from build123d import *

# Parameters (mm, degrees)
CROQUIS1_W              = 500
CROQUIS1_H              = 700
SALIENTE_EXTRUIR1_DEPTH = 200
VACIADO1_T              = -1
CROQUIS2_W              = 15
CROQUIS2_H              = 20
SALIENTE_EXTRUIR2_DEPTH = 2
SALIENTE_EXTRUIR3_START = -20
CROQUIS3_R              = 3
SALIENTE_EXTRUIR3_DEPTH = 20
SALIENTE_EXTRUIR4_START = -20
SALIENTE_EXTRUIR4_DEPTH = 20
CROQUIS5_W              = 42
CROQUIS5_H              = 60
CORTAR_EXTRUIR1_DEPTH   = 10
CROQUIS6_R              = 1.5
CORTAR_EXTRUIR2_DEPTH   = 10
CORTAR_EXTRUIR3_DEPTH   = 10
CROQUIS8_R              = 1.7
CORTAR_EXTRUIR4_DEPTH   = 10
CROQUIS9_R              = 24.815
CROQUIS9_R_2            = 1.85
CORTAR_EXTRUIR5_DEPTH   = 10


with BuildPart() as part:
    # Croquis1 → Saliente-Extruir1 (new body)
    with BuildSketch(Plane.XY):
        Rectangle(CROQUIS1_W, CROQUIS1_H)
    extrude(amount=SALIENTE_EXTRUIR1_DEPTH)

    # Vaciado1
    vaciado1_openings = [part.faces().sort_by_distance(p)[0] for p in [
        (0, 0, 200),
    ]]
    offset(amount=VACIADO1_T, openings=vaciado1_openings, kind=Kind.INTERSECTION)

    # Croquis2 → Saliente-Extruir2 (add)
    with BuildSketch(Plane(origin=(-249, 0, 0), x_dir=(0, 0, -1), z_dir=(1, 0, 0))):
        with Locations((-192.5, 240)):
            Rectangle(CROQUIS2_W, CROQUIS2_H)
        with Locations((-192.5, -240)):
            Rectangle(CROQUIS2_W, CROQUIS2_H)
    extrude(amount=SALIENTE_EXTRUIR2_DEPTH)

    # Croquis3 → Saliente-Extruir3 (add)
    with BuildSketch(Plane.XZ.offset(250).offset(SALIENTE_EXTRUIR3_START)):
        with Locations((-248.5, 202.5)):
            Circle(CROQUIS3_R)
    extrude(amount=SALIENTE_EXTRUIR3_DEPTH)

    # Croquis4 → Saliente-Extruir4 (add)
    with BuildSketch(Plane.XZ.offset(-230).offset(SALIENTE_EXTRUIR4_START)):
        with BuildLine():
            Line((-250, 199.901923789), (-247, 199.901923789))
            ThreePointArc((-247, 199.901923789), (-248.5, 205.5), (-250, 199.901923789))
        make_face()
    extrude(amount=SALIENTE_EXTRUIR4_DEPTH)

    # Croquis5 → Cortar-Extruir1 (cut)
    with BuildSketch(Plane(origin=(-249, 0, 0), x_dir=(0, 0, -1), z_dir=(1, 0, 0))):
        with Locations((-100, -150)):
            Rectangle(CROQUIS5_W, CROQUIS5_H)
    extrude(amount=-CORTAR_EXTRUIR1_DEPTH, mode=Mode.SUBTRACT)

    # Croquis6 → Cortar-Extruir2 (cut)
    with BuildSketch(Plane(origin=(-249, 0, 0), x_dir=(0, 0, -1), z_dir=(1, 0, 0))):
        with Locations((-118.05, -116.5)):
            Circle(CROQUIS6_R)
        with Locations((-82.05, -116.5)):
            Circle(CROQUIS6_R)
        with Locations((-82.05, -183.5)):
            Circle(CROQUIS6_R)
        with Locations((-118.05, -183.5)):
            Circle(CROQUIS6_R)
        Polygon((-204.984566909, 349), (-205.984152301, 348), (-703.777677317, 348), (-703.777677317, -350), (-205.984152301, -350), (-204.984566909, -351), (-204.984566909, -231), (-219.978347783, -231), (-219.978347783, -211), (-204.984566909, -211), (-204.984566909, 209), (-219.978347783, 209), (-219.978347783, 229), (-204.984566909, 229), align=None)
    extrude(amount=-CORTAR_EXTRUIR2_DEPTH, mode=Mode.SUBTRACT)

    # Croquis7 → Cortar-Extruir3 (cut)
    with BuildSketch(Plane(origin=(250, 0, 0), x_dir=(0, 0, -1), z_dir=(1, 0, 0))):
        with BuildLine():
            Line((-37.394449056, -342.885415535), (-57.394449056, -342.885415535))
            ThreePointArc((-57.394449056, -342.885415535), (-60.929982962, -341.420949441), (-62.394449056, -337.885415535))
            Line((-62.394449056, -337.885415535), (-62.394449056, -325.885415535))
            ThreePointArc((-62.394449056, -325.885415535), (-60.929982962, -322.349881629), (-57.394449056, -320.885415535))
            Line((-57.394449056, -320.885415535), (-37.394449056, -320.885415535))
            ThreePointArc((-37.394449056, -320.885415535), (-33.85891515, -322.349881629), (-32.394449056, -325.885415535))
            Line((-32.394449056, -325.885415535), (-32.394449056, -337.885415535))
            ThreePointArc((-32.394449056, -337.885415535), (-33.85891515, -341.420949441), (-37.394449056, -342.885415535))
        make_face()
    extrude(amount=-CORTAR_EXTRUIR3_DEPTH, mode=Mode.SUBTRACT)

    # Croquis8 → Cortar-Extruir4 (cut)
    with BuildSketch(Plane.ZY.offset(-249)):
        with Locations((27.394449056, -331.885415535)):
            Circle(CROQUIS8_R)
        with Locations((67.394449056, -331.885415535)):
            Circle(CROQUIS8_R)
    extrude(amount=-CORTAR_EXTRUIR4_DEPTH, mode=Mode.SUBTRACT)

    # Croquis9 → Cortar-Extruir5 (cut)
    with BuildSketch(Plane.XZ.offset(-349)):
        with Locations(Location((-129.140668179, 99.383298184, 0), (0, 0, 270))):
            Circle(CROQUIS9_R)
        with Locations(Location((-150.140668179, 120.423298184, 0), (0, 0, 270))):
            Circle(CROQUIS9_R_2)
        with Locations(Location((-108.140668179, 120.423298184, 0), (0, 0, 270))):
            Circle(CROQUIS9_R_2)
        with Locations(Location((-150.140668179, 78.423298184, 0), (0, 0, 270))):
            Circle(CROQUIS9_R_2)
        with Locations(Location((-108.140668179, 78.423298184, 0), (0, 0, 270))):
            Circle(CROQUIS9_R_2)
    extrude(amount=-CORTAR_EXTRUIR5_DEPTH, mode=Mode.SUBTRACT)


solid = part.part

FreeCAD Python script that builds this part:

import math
import FreeCAD as App
import Part
import Sketcher
from FreeCAD import Vector
Q = App.Units.Quantity


def faces_at(feature, points):
    """Names of the faces that lie closest to the given points."""
    faces = feature.Shape.Faces
    near = lambda p: min(range(len(faces)), key=lambda i: faces[i].distToShape(Part.Vertex(*p))[0])
    return sorted({f"Face{near(p) + 1}" for p in points})

doc = App.newDocument("Part")
body = doc.addObject("PartDesign::Body", "Body")

# Sketch on XY plane
sketch1 = doc.addObject("Sketcher::SketchObject", "Sketch")
body.addObject(sketch1)
sketch1.AttachmentSupport = (doc.XY_Plane, [""])
sketch1.MapMode = "FlatFace"
sketch1.addGeometry(Part.LineSegment(Vector(-250, 350, 0), Vector(-250, -350, 0)), False)
sketch1.addGeometry(Part.LineSegment(Vector(-250, -350, 0), Vector(250, -350, 0)), False)
sketch1.addGeometry(Part.LineSegment(Vector(250, -350, 0), Vector(250, 350, 0)), False)
sketch1.addGeometry(Part.LineSegment(Vector(250, 350, 0), Vector(-250, 350, 0)), False)
sketch1.addConstraint(Sketcher.Constraint("Coincident", 0, 2, 1, 1))
sketch1.addConstraint(Sketcher.Constraint("Coincident", 1, 2, 2, 1))
sketch1.addConstraint(Sketcher.Constraint("Coincident", 2, 2, 3, 1))
sketch1.addConstraint(Sketcher.Constraint("Coincident", 3, 2, 0, 1))
sketch1.addConstraint(Sketcher.Constraint("Vertical", 0))
sketch1.addConstraint(Sketcher.Constraint("Horizontal", 1))
sketch1.addConstraint(Sketcher.Constraint("Vertical", 2))
sketch1.addConstraint(Sketcher.Constraint("Horizontal", 3))
sketch1.addConstraint(Sketcher.Constraint("Symmetric", 0, 2, 2, 2, -1, 1))
sketch1.addConstraint(Sketcher.Constraint("DistanceX", 1, 1, 1, 2, Q("500 mm")))
sketch1.addConstraint(Sketcher.Constraint("DistanceY", 0, 2, 0, 1, Q("700 mm")))
pad1 = doc.addObject("PartDesign::Pad", "Pad")
body.addObject(pad1)
pad1.Profile = sketch1
pad1.Length = 200
doc.recompute()

thickness = doc.addObject("PartDesign::Thickness", "Thickness")
body.addObject(thickness)
thickness.Base = (pad1, faces_at(pad1, [(0, 0, 200)]))
thickness.Value = 1
thickness.Reversed = True
thickness.Join = "Intersection"

# Sketch on YZ plane
sketch2 = doc.addObject("Sketcher::SketchObject", "Sketch001")
body.addObject(sketch2)
sketch2.AttachmentSupport = (doc.YZ_Plane, [""])
sketch2.MapMode = "FlatFace"
sketch2.AttachmentOffset = App.Placement(Vector(0, 0, -249), App.Rotation())
sketch2.addGeometry(Part.LineSegment(Vector(250, 200, 0), Vector(230, 200, 0)), False)
sketch2.addGeometry(Part.LineSegment(Vector(230, 200, 0), Vector(230, 185, 0)), False)
sketch2.addGeometry(Part.LineSegment(Vector(230, 185, 0), Vector(250, 185, 0)), False)
sketch2.addGeometry(Part.LineSegment(Vector(250, 185, 0), Vector(250, 200, 0)), False)
sketch2.addGeometry(Part.LineSegment(Vector(-230, 200, 0), Vector(-250, 200, 0)), False)
sketch2.addGeometry(Part.LineSegment(Vector(-250, 200, 0), Vector(-250, 185, 0)), False)
sketch2.addGeometry(Part.LineSegment(Vector(-250, 185, 0), Vector(-230, 185, 0)), False)
sketch2.addGeometry(Part.LineSegment(Vector(-230, 185, 0), Vector(-230, 200, 0)), False)
sketch2.addConstraint(Sketcher.Constraint("Coincident", 0, 2, 1, 1))
sketch2.addConstraint(Sketcher.Constraint("Coincident", 1, 2, 2, 1))
sketch2.addConstraint(Sketcher.Constraint("Coincident", 2, 2, 3, 1))
sketch2.addConstraint(Sketcher.Constraint("Coincident", 3, 2, 0, 1))
sketch2.addConstraint(Sketcher.Constraint("Coincident", 4, 2, 5, 1))
sketch2.addConstraint(Sketcher.Constraint("Coincident", 5, 2, 6, 1))
sketch2.addConstraint(Sketcher.Constraint("Coincident", 6, 2, 7, 1))
sketch2.addConstraint(Sketcher.Constraint("Coincident", 7, 2, 4, 1))
sketch2.addConstraint(Sketcher.Constraint("Horizontal", 0))
sketch2.addConstraint(Sketcher.Constraint("Vertical", 1))
sketch2.addConstraint(Sketcher.Constraint("Horizontal", 2))
sketch2.addConstraint(Sketcher.Constraint("Vertical", 3))
sketch2.addConstraint(Sketcher.Constraint("Horizontal", 4))
sketch2.addConstraint(Sketcher.Constraint("Vertical", 5))
sketch2.addConstraint(Sketcher.Constraint("Horizontal", 6))
sketch2.addConstraint(Sketcher.Constraint("Vertical", 7))
sketch2.addConstraint(Sketcher.Constraint("Symmetric", 3, 2, 4, 2, -2))
sketch2.addConstraint(Sketcher.Constraint("Symmetric", 1, 2, 6, 2, -2))
sketch2.addConstraint(Sketcher.Constraint("DistanceX", 0, 2, 0, 1, Q("20 mm")))
sketch2.addConstraint(Sketcher.Constraint("DistanceY", 1, 2, 1, 1, Q("15 mm")))
sketch2.addConstraint(Sketcher.Constraint("DistanceX", -1, 1, 0, 2, Q("230 mm")))
sketch2.addConstraint(Sketcher.Constraint("DistanceY", -1, 1, 0, 2, Q("200 mm")))
pad2 = doc.addObject("PartDesign::Pad", "Pad001")
body.addObject(pad2)
pad2.Profile = sketch2
pad2.Length = 2

# Sketch on XZ plane
sketch3 = doc.addObject("Sketcher::SketchObject", "Sketch002")
body.addObject(sketch3)
sketch3.AttachmentSupport = (doc.XZ_Plane, [""])
sketch3.MapMode = "FlatFace"
sketch3.AttachmentOffset = App.Placement(Vector(0, 0, 230), App.Rotation())
sketch3.addGeometry(Part.Circle(Vector(-248.5, 202.5, 0), Vector(0, 0, 1), 3), False)
sketch3.addConstraint(Sketcher.Constraint("Diameter", 0, Q("6 mm")))
sketch3.addConstraint(Sketcher.Constraint("DistanceX", 0, 3, -1, 1, Q("248.5 mm")))
sketch3.addConstraint(Sketcher.Constraint("DistanceY", -1, 1, 0, 3, Q("202.5 mm")))
pad3 = doc.addObject("PartDesign::Pad", "Pad002")
body.addObject(pad3)
pad3.Profile = sketch3
pad3.Length = 20

# Sketch on XZ plane
sketch4 = doc.addObject("Sketcher::SketchObject", "Sketch003")
body.addObject(sketch4)
sketch4.AttachmentSupport = (doc.XZ_Plane, [""])
sketch4.MapMode = "FlatFace"
sketch4.AttachmentOffset = App.Placement(Vector(0, 0, -250), App.Rotation())
sketch4.addGeometry(Part.LineSegment(Vector(-250, 199.9, 0), Vector(-247, 199.9, 0)), False)
sketch4.addGeometry(Part.ArcOfCircle(Part.Circle(Vector(-248.5, 202.5, 0), Vector(0, 0, 1), 3), math.radians(-60), math.radians(240)), False)
sketch4.addConstraint(Sketcher.Constraint("Coincident", 0, 1, 1, 2))
sketch4.addConstraint(Sketcher.Constraint("Coincident", 1, 1, 0, 2))
sketch4.addConstraint(Sketcher.Constraint("Horizontal", 0))
sketch4.addConstraint(Sketcher.Constraint("Radius", 1, Q("3 mm")))
sketch4.addConstraint(Sketcher.Constraint("DistanceX", 0, 1, 0, 2, Q("3 mm")))
sketch4.addConstraint(Sketcher.Constraint("DistanceX", 0, 1, -1, 1, Q("250 mm")))
sketch4.addConstraint(Sketcher.Constraint("DistanceY", -1, 1, 1, 3, Q("202.5 mm")))
pad4 = doc.addObject("PartDesign::Pad", "Pad003")
body.addObject(pad4)
pad4.Profile = sketch4
pad4.Length = 20

# Sketch on YZ plane
sketch5 = doc.addObject("Sketcher::SketchObject", "Sketch004")
body.addObject(sketch5)
sketch5.AttachmentSupport = (doc.YZ_Plane, [""])
sketch5.MapMode = "FlatFace"
sketch5.AttachmentOffset = App.Placement(Vector(0, 0, -249), App.Rotation())
sketch5.addGeometry(Part.LineSegment(Vector(-120, 121, 0), Vector(-180, 121, 0)), False)
sketch5.addGeometry(Part.LineSegment(Vector(-180, 121, 0), Vector(-180, 79, 0)), False)
sketch5.addGeometry(Part.LineSegment(Vector(-180, 79, 0), Vector(-120, 79, 0)), False)
sketch5.addGeometry(Part.LineSegment(Vector(-120, 79, 0), Vector(-120, 121, 0)), False)
sketch5.addConstraint(Sketcher.Constraint("Coincident", 0, 2, 1, 1))
sketch5.addConstraint(Sketcher.Constraint("Coincident", 1, 2, 2, 1))
sketch5.addConstraint(Sketcher.Constraint("Coincident", 2, 2, 3, 1))
sketch5.addConstraint(Sketcher.Constraint("Coincident", 3, 2, 0, 1))
sketch5.addConstraint(Sketcher.Constraint("Horizontal", 0))
sketch5.addConstraint(Sketcher.Constraint("Vertical", 1))
sketch5.addConstraint(Sketcher.Constraint("Horizontal", 2))
sketch5.addConstraint(Sketcher.Constraint("Vertical", 3))
sketch5.addConstraint(Sketcher.Constraint("DistanceX", 0, 2, 0, 1, Q("60 mm")))
sketch5.addConstraint(Sketcher.Constraint("DistanceY", 1, 2, 1, 1, Q("42 mm")))
sketch5.addConstraint(Sketcher.Constraint("DistanceX", 0, 2, -1, 1, Q("180 mm")))
sketch5.addConstraint(Sketcher.Constraint("DistanceY", -1, 1, 0, 2, Q("121 mm")))
pocket1 = doc.addObject("PartDesign::Pocket", "Pocket")
body.addObject(pocket1)
pocket1.Profile = sketch5
pocket1.Length = 10

# Sketch on YZ plane
sketch6 = doc.addObject("Sketcher::SketchObject", "Sketch005")
body.addObject(sketch6)
sketch6.AttachmentSupport = (doc.YZ_Plane, [""])
sketch6.MapMode = "FlatFace"
sketch6.AttachmentOffset = App.Placement(Vector(0, 0, -249), App.Rotation())
sketch6.addGeometry(Part.Circle(Vector(-116.5, 118, 0), Vector(0, 0, 1), 1.5), False)
sketch6.addGeometry(Part.Circle(Vector(-116.5, 82, 0), Vector(0, 0, 1), 1.5), False)
sketch6.addGeometry(Part.Circle(Vector(-183.5, 82, 0), Vector(0, 0, 1), 1.5), False)
sketch6.addGeometry(Part.Circle(Vector(-183.5, 118, 0), Vector(0, 0, 1), 1.5), False)
sketch6.addGeometry(Part.LineSegment(Vector(349, 205, 0), Vector(348, 206, 0)), False)
sketch6.addGeometry(Part.LineSegment(Vector(348, 206, 0), Vector(348, 703.8, 0)), False)
sketch6.addGeometry(Part.LineSegment(Vector(348, 703.8, 0), Vector(-350, 703.8, 0)), False)
sketch6.addGeometry(Part.LineSegment(Vector(-350, 703.8, 0), Vector(-350, 206, 0)), False)
sketch6.addGeometry(Part.LineSegment(Vector(-350, 206, 0), Vector(-351, 205, 0)), False)
sketch6.addGeometry(Part.LineSegment(Vector(-351, 205, 0), Vector(-231, 205, 0)), False)
sketch6.addGeometry(Part.LineSegment(Vector(-231, 205, 0), Vector(-231, 220, 0)), False)
sketch6.addGeometry(Part.LineSegment(Vector(-231, 220, 0), Vector(-211, 220, 0)), False)
sketch6.addGeometry(Part.LineSegment(Vector(-211, 220, 0), Vector(-211, 205, 0)), False)
sketch6.addGeometry(Part.LineSegment(Vector(-211, 205, 0), Vector(209, 205, 0)), False)
sketch6.addGeometry(Part.LineSegment(Vector(209, 205, 0), Vector(209, 220, 0)), False)
sketch6.addGeometry(Part.LineSegment(Vector(209, 220, 0), Vector(229, 220, 0)), False)
sketch6.addGeometry(Part.LineSegment(Vector(229, 220, 0), Vector(229, 205, 0)), False)
sketch6.addGeometry(Part.LineSegment(Vector(229, 205, 0), Vector(349, 205, 0)), False)
sketch6.addConstraint(Sketcher.Constraint("Coincident", 4, 2, 5, 1))
sketch6.addConstraint(Sketcher.Constraint("Coincident", 5, 2, 6, 1))
sketch6.addConstraint(Sketcher.Constraint("Coincident", 6, 2, 7, 1))
sketch6.addConstraint(Sketcher.Constraint("Coincident", 7, 2, 8, 1))
sketch6.addConstraint(Sketcher.Constraint("Coincident", 8, 2, 9, 1))
sketch6.addConstraint(Sketcher.Constraint("Coincident", 9, 2, 10, 1))
sketch6.addConstraint(Sketcher.Constraint("Coincident", 10, 2, 11, 1))
sketch6.addConstraint(Sketcher.Constraint("Coincident", 11, 2, 12, 1))
sketch6.addConstraint(Sketcher.Constraint("Coincident", 12, 2, 13, 1))
sketch6.addConstraint(Sketcher.Constraint("Coincident", 13, 2, 14, 1))
sketch6.addConstraint(Sketcher.Constraint("Coincident", 14, 2, 15, 1))
sketch6.addConstraint(Sketcher.Constraint("Coincident", 15, 2, 16, 1))
sketch6.addConstraint(Sketcher.Constraint("Coincident", 16, 2, 17, 1))
sketch6.addConstraint(Sketcher.Constraint("Coincident", 17, 2, 4, 1))
sketch6.addConstraint(Sketcher.Constraint("Vertical", 5))
sketch6.addConstraint(Sketcher.Constraint("Horizontal", 6))
sketch6.addConstraint(Sketcher.Constraint("Vertical", 7))
sketch6.addConstraint(Sketcher.Constraint("Horizontal", 9))
sketch6.addConstraint(Sketcher.Constraint("Vertical", 10))
sketch6.addConstraint(Sketcher.Constraint("Horizontal", 11))
sketch6.addConstraint(Sketcher.Constraint("Vertical", 12))
sketch6.addConstraint(Sketcher.Constraint("Horizontal", 13))
sketch6.addConstraint(Sketcher.Constraint("Vertical", 14))
sketch6.addConstraint(Sketcher.Constraint("Horizontal", 15))
sketch6.addConstraint(Sketcher.Constraint("Vertical", 16))
sketch6.addConstraint(Sketcher.Constraint("Horizontal", 17))
sketch6.addConstraint(Sketcher.Constraint("Equal", 0, 1))
sketch6.addConstraint(Sketcher.Constraint("Equal", 1, 2))
sketch6.addConstraint(Sketcher.Constraint("Equal", 2, 3))
sketch6.addConstraint(Sketcher.Constraint("Horizontal", 1, 3, 2, 3))
sketch6.addConstraint(Sketcher.Constraint("Horizontal", 0, 3, 3, 3))
sketch6.addConstraint(Sketcher.Constraint("Horizontal", 4, 2, 7, 2))
sketch6.addConstraint(Sketcher.Constraint("Horizontal", 9, 2, 12, 2))
sketch6.addConstraint(Sketcher.Constraint("Horizontal", 11, 2, 14, 2))
sketch6.addConstraint(Sketcher.Constraint("Horizontal", 13, 2, 16, 2))
sketch6.addConstraint(Sketcher.Constraint("Vertical", 0, 3, 1, 3))
sketch6.addConstraint(Sketcher.Constraint("Vertical", 2, 3, 3, 3))
sketch6.addConstraint(Sketcher.Constraint("Equal", 11, 15))
sketch6.addConstraint(Sketcher.Constraint("Equal", 9, 17))
sketch6.addConstraint(Sketcher.Constraint("Equal", 4, 8))
sketch6.addConstraint(Sketcher.Constraint("Diameter", 0, Q("3 mm")))
sketch6.addConstraint(Sketcher.Constraint("DistanceX", 6, 2, 6, 1, Q("698 mm")))
sketch6.addConstraint(Sketcher.Constraint("DistanceX", 9, 1, 9, 2, Q("120 mm")))
sketch6.addConstraint(Sketcher.Constraint("DistanceX", 11, 1, 11, 2, Q("20 mm")))
sketch6.addConstraint(Sketcher.Constraint("DistanceX", 13, 1, 13, 2, Q("420 mm")))
sketch6.addConstraint(Sketcher.Constraint("DistanceX", -1, 1, 4, 2, Q("348 mm")))
sketch6.addConstraint(Sketcher.Constraint("DistanceY", 1, 3, 0, 3, Q("36 mm")))
sketch6.addConstraint(Sketcher.Constraint("DistanceX", 2, 3, 1, 3, Q("67 mm")))
sketch6.addConstraint(Sketcher.Constraint("DistanceX", 0, 3, -1, 1, Q("116.5 mm")))
sketch6.addConstraint(Sketcher.Constraint("DistanceY", -1, 1, 0, 3, Q("118.05 mm")))
sketch6.addConstraint(Sketcher.Constraint("DistanceY", 10, 1, 10, 2, Q("14.993781 mm")))
sketch6.addConstraint(Sketcher.Constraint("Distance", 4, Q("1.41392 mm")))
sketch6.addConstraint(Sketcher.Constraint("DistanceY", 5, 1, 5, 2, Q("497.793525 mm")))
sketch6.addConstraint(Sketcher.Constraint("DistanceY", -1, 1, 4, 2, Q("205.984152 mm")))
pocket2 = doc.addObject("PartDesign::Pocket", "Pocket001")
body.addObject(pocket2)
pocket2.Profile = sketch6
pocket2.Length = 10

# Sketch on YZ plane
sketch7 = doc.addObject("Sketcher::SketchObject", "Sketch006")
body.addObject(sketch7)
sketch7.AttachmentSupport = (doc.YZ_Plane, [""])
sketch7.MapMode = "FlatFace"
sketch7.AttachmentOffset = App.Placement(Vector(0, 0, 250), App.Rotation())
sketch7.addGeometry(Part.LineSegment(Vector(-343, 57, 0), Vector(-343, 37, 0)), False)
sketch7.addGeometry(Part.ArcOfCircle(Part.Circle(Vector(-338, 37, 0), Vector(0, 0, 1), 5), math.radians(180), math.radians(270)), False)
sketch7.addGeometry(Part.LineSegment(Vector(-338, 32, 0), Vector(-326, 32, 0)), False)
sketch7.addGeometry(Part.ArcOfCircle(Part.Circle(Vector(-326, 37, 0), Vector(0, 0, 1), 5), math.radians(-90), math.radians(0)), False)
sketch7.addGeometry(Part.LineSegment(Vector(-321, 37, 0), Vector(-321, 57, 0)), False)
sketch7.addGeometry(Part.ArcOfCircle(Part.Circle(Vector(-326, 57, 0), Vector(0, 0, 1), 5), math.radians(0), math.radians(90)), False)
sketch7.addGeometry(Part.LineSegment(Vector(-326, 62, 0), Vector(-338, 62, 0)), False)
sketch7.addGeometry(Part.ArcOfCircle(Part.Circle(Vector(-338, 57, 0), Vector(0, 0, 1), 5), math.radians(90), math.radians(180)), False)
sketch7.addConstraint(Sketcher.Constraint("Tangent", 0, 2, 1, 1))
sketch7.addConstraint(Sketcher.Constraint("Tangent", 1, 2, 2, 1))
sketch7.addConstraint(Sketcher.Constraint("Tangent", 2, 2, 3, 1))
sketch7.addConstraint(Sketcher.Constraint("Tangent", 3, 2, 4, 1))
sketch7.addConstraint(Sketcher.Constraint("Tangent", 4, 2, 5, 1))
sketch7.addConstraint(Sketcher.Constraint("Tangent", 5, 2, 6, 1))
sketch7.addConstraint(Sketcher.Constraint("Tangent", 6, 2, 7, 1))
sketch7.addConstraint(Sketcher.Constraint("Tangent", 7, 2, 0, 1))
sketch7.addConstraint(Sketcher.Constraint("Vertical", 0))
sketch7.addConstraint(Sketcher.Constraint("Horizontal", 2))
sketch7.addConstraint(Sketcher.Constraint("Vertical", 4))
sketch7.addConstraint(Sketcher.Constraint("Horizontal", 6))
sketch7.addConstraint(Sketcher.Constraint("Equal", 1, 3))
sketch7.addConstraint(Sketcher.Constraint("Equal", 3, 5))
sketch7.addConstraint(Sketcher.Constraint("Equal", 5, 7))
sketch7.addConstraint(Sketcher.Constraint("Radius", 1, Q("5 mm")))
sketch7.addConstraint(Sketcher.Constraint("DistanceX", 2, 1, 2, 2, Q("12 mm")))
sketch7.addConstraint(Sketcher.Constraint("DistanceY", 0, 2, 0, 1, Q("20 mm")))
sketch7.addConstraint(Sketcher.Constraint("DistanceY", -1, 1, 1, 3, Q("37.394449 mm")))
sketch7.addConstraint(Sketcher.Constraint("DistanceX", 1, 3, -1, 1, Q("337.885416 mm")))
pocket3 = doc.addObject("PartDesign::Pocket", "Pocket002")
body.addObject(pocket3)
pocket3.Profile = sketch7
pocket3.Length = 10

# Sketch on YZ plane
sketch8 = doc.addObject("Sketcher::SketchObject", "Sketch007")
body.addObject(sketch8)
sketch8.AttachmentSupport = (doc.YZ_Plane, [""])
sketch8.MapMode = "FlatFace"
sketch8.AttachmentOffset = App.Placement(Vector(0, 0, 249), App.Rotation())
sketch8.addGeometry(Part.Circle(Vector(-331.9, 27.4, 0), Vector(0, 0, 1), 1.7), False)
sketch8.addGeometry(Part.Circle(Vector(-331.9, 67.4, 0), Vector(0, 0, 1), 1.7), False)
sketch8.addConstraint(Sketcher.Constraint("Equal", 0, 1))
sketch8.addConstraint(Sketcher.Constraint("Vertical", 0, 3, 1, 3))
sketch8.addConstraint(Sketcher.Constraint("Diameter", 0, Q("3.4 mm")))
sketch8.addConstraint(Sketcher.Constraint("DistanceY", 0, 3, 1, 3, Q("40 mm")))
sketch8.addConstraint(Sketcher.Constraint("DistanceY", -1, 1, 0, 3, Q("27.394449 mm")))
sketch8.addConstraint(Sketcher.Constraint("DistanceX", 0, 3, -1, 1, Q("331.885416 mm")))
pocket4 = doc.addObject("PartDesign::Pocket", "Pocket003")
body.addObject(pocket4)
pocket4.Profile = sketch8
pocket4.Length = 10
pocket4.Reversed = True

# Sketch on XZ plane
sketch9 = doc.addObject("Sketcher::SketchObject", "Sketch008")
body.addObject(sketch9)
sketch9.AttachmentSupport = (doc.XZ_Plane, [""])
sketch9.MapMode = "FlatFace"
sketch9.AttachmentOffset = App.Placement(Vector(0, 0, -349), App.Rotation())
sketch9.addGeometry(Part.Circle(Vector(-129.1, 99.4, 0), Vector(0, 0, 1), 24.8), False)
sketch9.addGeometry(Part.Circle(Vector(-150.1, 120.4, 0), Vector(0, 0, 1), 1.9), False)
sketch9.addGeometry(Part.Circle(Vector(-108.1, 120.4, 0), Vector(0, 0, 1), 1.9), False)
sketch9.addGeometry(Part.Circle(Vector(-150.1, 78.4, 0), Vector(0, 0, 1), 1.9), False)
sketch9.addGeometry(Part.Circle(Vector(-108.1, 78.4, 0), Vector(0, 0, 1), 1.9), False)
sketch9.addConstraint(Sketcher.Constraint("Equal", 1, 2))
sketch9.addConstraint(Sketcher.Constraint("Equal", 2, 3))
sketch9.addConstraint(Sketcher.Constraint("Equal", 3, 4))
sketch9.addConstraint(Sketcher.Constraint("Horizontal", 1, 3, 2, 3))
sketch9.addConstraint(Sketcher.Constraint("Horizontal", 3, 3, 4, 3))
sketch9.addConstraint(Sketcher.Constraint("Vertical", 1, 3, 3, 3))
sketch9.addConstraint(Sketcher.Constraint("Vertical", 2, 3, 4, 3))
sketch9.addConstraint(Sketcher.Constraint("Diameter", 1, Q("3.7 mm")))
sketch9.addConstraint(Sketcher.Constraint("Diameter", 0, Q("49.63 mm")))
sketch9.addConstraint(Sketcher.Constraint("DistanceX", 1, 3, 0, 3, Q("21 mm")))
sketch9.addConstraint(Sketcher.Constraint("DistanceX", 0, 3, 2, 3, Q("21 mm")))
sketch9.addConstraint(Sketcher.Constraint("DistanceY", 3, 3, 1, 3, Q("42 mm")))
sketch9.addConstraint(Sketcher.Constraint("DistanceY", 0, 3, 1, 3, Q("21.04 mm")))
sketch9.addConstraint(Sketcher.Constraint("DistanceY", -1, 1, 0, 3, Q("99.383298 mm")))
sketch9.addConstraint(Sketcher.Constraint("DistanceX", 0, 3, -1, 1, Q("129.140668 mm")))
pocket5 = doc.addObject("PartDesign::Pocket", "Pocket004")
body.addObject(pocket5)
pocket5.Profile = sketch9
pocket5.Length = 10

doc.recompute()
